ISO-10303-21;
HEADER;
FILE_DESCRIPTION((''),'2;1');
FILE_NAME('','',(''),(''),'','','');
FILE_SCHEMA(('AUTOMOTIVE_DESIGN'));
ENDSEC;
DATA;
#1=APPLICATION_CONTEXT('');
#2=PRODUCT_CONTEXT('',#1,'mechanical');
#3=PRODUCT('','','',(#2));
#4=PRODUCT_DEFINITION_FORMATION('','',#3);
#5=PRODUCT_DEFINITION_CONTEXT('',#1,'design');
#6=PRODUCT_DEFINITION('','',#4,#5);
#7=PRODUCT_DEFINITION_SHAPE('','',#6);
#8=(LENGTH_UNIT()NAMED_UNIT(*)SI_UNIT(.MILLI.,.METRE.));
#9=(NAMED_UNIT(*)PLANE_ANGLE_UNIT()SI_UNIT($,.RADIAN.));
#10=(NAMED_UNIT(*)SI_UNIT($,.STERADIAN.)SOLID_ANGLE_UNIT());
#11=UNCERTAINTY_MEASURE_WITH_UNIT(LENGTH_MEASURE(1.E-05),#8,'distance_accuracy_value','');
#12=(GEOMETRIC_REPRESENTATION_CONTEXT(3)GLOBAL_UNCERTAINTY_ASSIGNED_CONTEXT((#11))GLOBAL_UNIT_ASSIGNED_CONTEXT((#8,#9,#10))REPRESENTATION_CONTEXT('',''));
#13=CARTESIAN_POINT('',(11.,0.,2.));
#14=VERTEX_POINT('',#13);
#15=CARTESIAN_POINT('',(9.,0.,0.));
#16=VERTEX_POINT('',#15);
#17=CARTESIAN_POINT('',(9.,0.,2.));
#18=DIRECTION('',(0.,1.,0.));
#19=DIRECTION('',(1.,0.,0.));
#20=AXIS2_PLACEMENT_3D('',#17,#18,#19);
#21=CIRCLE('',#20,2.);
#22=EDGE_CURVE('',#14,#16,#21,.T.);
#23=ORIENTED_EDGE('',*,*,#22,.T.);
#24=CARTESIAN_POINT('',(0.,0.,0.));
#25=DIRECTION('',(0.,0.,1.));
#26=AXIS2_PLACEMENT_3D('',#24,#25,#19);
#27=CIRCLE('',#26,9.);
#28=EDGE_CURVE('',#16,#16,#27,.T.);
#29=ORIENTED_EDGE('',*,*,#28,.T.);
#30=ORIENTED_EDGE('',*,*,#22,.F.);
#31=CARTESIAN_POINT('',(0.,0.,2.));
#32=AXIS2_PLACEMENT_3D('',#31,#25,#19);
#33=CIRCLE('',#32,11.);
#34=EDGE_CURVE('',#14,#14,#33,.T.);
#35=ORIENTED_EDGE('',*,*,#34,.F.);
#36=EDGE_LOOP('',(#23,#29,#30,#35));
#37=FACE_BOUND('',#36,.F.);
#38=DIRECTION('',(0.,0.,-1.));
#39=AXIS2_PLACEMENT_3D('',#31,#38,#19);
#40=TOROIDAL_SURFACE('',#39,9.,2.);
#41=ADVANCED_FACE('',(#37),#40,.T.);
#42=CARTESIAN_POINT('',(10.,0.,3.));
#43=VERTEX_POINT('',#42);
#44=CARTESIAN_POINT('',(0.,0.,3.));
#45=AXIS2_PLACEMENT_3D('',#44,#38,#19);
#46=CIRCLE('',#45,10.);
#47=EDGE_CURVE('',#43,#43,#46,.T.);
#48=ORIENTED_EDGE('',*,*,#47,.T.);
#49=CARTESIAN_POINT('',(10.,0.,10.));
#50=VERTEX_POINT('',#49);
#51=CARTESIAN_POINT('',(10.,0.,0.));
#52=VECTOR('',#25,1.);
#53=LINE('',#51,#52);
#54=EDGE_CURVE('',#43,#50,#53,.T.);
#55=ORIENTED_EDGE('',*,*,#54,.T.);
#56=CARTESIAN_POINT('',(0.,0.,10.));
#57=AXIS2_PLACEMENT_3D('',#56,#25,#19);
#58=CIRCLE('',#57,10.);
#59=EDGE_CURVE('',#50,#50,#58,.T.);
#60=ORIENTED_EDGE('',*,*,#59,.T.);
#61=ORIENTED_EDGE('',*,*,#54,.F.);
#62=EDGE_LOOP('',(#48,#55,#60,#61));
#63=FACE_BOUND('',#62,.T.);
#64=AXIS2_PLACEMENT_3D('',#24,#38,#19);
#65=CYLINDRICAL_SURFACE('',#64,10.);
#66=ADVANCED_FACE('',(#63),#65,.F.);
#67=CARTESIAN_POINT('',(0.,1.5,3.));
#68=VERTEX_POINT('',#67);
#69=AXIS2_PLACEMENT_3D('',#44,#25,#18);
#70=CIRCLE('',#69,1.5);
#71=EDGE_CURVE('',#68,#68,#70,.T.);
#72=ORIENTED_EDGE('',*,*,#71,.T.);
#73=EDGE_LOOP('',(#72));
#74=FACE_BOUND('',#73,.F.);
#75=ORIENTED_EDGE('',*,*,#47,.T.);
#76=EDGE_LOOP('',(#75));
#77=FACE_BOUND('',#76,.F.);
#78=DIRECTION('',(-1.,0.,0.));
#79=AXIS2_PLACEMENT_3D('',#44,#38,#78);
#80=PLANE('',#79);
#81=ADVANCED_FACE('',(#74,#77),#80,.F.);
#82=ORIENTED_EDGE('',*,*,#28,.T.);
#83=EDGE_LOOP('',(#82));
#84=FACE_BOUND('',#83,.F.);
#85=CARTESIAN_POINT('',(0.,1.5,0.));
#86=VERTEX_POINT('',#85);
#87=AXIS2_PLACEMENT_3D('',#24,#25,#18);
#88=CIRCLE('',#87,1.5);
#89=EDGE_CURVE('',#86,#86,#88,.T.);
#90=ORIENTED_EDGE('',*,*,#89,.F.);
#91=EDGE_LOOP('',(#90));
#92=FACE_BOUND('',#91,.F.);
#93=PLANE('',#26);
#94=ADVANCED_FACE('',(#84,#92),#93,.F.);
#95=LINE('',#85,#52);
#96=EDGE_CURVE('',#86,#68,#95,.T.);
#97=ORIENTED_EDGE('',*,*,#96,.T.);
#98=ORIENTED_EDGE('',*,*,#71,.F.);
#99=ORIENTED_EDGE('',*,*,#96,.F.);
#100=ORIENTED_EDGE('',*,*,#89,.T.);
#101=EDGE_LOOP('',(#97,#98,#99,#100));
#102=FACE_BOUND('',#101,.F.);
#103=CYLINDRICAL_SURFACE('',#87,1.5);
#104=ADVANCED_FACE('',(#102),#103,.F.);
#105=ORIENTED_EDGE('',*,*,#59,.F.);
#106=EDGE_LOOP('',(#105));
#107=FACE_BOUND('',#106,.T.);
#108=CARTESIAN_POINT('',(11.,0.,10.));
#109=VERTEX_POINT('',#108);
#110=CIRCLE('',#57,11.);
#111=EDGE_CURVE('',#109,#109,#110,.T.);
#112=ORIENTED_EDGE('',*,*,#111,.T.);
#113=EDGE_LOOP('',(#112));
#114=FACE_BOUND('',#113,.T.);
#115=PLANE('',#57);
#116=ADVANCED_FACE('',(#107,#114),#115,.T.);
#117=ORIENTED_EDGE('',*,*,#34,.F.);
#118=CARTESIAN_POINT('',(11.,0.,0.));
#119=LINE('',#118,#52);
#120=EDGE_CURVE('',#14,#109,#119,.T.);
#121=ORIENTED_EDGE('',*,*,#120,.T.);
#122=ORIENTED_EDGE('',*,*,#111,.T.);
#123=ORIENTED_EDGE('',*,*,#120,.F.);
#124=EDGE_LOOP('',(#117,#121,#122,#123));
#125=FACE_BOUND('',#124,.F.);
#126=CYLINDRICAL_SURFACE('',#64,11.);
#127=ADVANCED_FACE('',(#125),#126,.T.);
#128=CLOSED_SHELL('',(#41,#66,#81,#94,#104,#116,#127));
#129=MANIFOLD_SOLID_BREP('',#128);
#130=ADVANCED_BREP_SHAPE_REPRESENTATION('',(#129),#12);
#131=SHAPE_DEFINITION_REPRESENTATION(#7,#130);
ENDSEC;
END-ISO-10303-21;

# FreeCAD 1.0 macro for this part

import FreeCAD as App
import Part
import Sketcher

V = App.Vector


def edges_at(feature, points):
    """Names of the edges that pass closest to the given points."""
    edges = feature.Shape.Edges
    near = lambda p: min(range(len(edges)), key=lambda i: edges[i].distToShape(Part.Vertex(*p))[0])
    return sorted({f"Edge{near(p) + 1}" for p in points})

doc = App.newDocument("Part")
body = doc.addObject("PartDesign::Body", "Body")

# Sketch on XY plane
sketch1 = body.newObject("Sketcher::SketchObject", "Sketch")
sketch1.AttachmentSupport = (doc.getObject("XY_Plane"), [""])
sketch1.MapMode = "FlatFace"
sketch1.addGeometry([
    Part.Circle(V(0, 0, 0), V(0, 0, 1), 11),
    Part.Circle(V(0, 0, 0), V(0, 0, 1), 10),
], False)
sketch1.addConstraint([
    Sketcher.Constraint("Coincident", 0, 3, -1, 1),
    Sketcher.Constraint("Coincident", 1, 3, -1, 1),
    Sketcher.Constraint("Diameter", 0, 22.0),
    Sketcher.Constraint("Diameter", 1, 20.0),
])
pad1 = body.newObject("PartDesign::Pad", "Pad")
pad1.Profile = sketch1
pad1.Length = 10

# Sketch on XY plane
sketch2 = body.newObject("Sketcher::SketchObject", "Sketch001")
sketch2.AttachmentSupport = (doc.getObject("XY_Plane"), [""])
sketch2.MapMode = "FlatFace"
sketch2.addGeometry(Part.Circle(V(0, 0, 0), V(0, 0, 1), 10), False)
sketch2.addConstraint([
    Sketcher.Constraint("Coincident", 0, 3, -1, 1),
    Sketcher.Constraint("Diameter", 0, 20.0),
])
pad2 = body.newObject("PartDesign::Pad", "Pad001")
pad2.Profile = sketch2
pad2.Length = 3

# Sketch on XY plane
sketch3 = body.newObject("Sketcher::SketchObject", "Sketch002")
sketch3.AttachmentSupport = (doc.getObject("XY_Plane"), [""])
sketch3.MapMode = "FlatFace"
sketch3.addGeometry(Part.Circle(V(0, 0, 0), V(0, 0, 1), 1.5), False)
sketch3.addConstraint([
    Sketcher.Constraint("Coincident", 0, 3, -1, 1),
    Sketcher.Constraint("Diameter", 0, 3.0),
])
doc.recompute()
hole = body.newObject("PartDesign::Hole", "Hole")
hole.Profile = sketch3
hole.ThreadType = "None"
hole.Diameter = 3
hole.DepthType = "ThroughAll"
hole.Reversed = True
doc.recompute()

fillet = body.newObject("PartDesign::Fillet", "Fillet")
fillet.Base = (hole, edges_at(hole, [(-11, 0, 0)]))
fillet.Radius = 2

doc.recompute()
